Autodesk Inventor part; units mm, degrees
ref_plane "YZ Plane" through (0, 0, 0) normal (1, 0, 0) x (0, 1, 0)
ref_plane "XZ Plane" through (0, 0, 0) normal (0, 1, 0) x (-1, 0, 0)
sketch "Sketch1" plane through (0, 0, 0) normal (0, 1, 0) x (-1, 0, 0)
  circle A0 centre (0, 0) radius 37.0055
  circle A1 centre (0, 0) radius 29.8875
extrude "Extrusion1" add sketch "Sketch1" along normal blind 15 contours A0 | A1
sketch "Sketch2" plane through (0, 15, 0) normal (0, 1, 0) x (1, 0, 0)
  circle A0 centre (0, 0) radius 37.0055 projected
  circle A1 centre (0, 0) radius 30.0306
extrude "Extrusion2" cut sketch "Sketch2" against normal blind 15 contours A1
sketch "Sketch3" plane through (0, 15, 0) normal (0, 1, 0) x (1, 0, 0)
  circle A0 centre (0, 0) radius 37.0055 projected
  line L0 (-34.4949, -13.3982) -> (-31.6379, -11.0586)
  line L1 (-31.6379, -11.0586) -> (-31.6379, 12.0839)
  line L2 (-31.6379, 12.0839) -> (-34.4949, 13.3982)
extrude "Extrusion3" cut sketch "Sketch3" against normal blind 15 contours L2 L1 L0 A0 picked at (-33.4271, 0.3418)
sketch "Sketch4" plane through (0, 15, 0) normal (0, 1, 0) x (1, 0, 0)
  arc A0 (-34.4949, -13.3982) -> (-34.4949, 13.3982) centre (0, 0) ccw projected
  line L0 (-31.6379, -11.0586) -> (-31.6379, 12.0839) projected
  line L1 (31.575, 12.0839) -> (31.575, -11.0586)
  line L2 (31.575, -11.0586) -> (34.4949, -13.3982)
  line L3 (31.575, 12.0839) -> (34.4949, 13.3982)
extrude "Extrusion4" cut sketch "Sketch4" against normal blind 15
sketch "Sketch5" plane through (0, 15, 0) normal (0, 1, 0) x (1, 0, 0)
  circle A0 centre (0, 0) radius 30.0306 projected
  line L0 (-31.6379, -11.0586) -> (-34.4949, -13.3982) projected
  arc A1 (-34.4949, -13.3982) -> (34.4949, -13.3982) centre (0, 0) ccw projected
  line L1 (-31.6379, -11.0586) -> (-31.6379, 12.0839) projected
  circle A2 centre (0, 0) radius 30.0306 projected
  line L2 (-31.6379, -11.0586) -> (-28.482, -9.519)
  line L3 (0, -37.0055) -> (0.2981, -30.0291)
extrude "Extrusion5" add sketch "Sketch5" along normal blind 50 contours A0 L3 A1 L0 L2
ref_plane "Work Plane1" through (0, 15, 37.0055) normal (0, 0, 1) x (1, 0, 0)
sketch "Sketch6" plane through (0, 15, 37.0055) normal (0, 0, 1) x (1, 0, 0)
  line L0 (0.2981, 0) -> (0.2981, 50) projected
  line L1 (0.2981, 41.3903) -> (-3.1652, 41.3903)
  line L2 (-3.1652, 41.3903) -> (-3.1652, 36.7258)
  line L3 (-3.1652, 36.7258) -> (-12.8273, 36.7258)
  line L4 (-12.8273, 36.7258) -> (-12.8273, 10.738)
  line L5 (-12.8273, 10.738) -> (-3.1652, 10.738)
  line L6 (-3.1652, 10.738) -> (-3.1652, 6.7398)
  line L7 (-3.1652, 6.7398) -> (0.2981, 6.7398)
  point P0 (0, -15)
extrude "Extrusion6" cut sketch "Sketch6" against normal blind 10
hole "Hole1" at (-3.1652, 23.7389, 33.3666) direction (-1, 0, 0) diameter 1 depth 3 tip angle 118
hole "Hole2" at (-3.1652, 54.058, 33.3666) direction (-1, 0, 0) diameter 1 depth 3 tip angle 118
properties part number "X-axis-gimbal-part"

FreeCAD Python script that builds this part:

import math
import FreeCAD as App
import Part
import Sketcher

V = App.Vector
Q = App.Units.Quantity

doc = App.newDocument("Part")
body = doc.addObject("PartDesign::Body", "Body")

# Sketch on XZ plane
sketch1 = body.newObject("Sketcher::SketchObject", "Sketch")
sketch1.AttachmentSupport = (doc.getObject("XZ_Plane"), [""])
sketch1.MapMode = "FlatFace"
sketch1.addGeometry(Part.Circle(V(0, 0, 0), V(0, 0, 1), 37.0055), False)
sketch1.addConstraint([
    Sketcher.Constraint("Coincident", 0, 3, -1, 1),
    Sketcher.Constraint("Diameter", 0, Q("74.011 mm")),
])
pad1 = body.newObject("PartDesign::Pad", "Pad")
pad1.Profile = sketch1
pad1.Length = 15
pad1.Reversed = True

# Sketch on XZ plane
sketch2 = body.newObject("Sketcher::SketchObject", "Sketch001")
sketch2.AttachmentSupport = (doc.getObject("XZ_Plane"), [""])
sketch2.MapMode = "FlatFace"
sketch2.AttachmentOffset = App.Placement(V(0, 0, -15), App.Rotation())
sketch2.addGeometry(Part.Circle(V(0, 0, 0), V(0, 0, 1), 30.0306), False)
sketch2.addConstraint([
    Sketcher.Constraint("Coincident", 0, 3, -1, 1),
    Sketcher.Constraint("Diameter", 0, Q("60.0612 mm")),
])
pocket1 = body.newObject("PartDesign::Pocket", "Pocket")
pocket1.Profile = sketch2
pocket1.Length = 15
pocket1.Reversed = True

# Sketch on XZ plane
sketch3 = body.newObject("Sketcher::SketchObject", "Sketch002")
sketch3.AttachmentSupport = (doc.getObject("XZ_Plane"), [""])
sketch3.MapMode = "FlatFace"
sketch3.AttachmentOffset = App.Placement(V(0, 0, -15), App.Rotation())
sketch3.addGeometry([
    Part.LineSegment(V(-31.6379, -12.0839, 0), V(-34.4949, -13.3982, 0)),
    Part.ArcOfCircle(Part.Circle(V(0, 0, 0), V(0, 0, 1), 37.0055), math.radians(158.77328), math.radians(201.22672)),
    Part.LineSegment(V(-34.4949, 13.3982, 0), V(-31.6379, 11.0586, 0)),
    Part.LineSegment(V(-31.6379, 11.0586, 0), V(-31.6379, -12.0839, 0)),
], False)
sketch3.addConstraint([
    Sketcher.Constraint("Coincident", 0, 2, 1, 2),
    Sketcher.Constraint("Coincident", 1, 1, 2, 1),
    Sketcher.Constraint("Coincident", 2, 2, 3, 1),
    Sketcher.Constraint("Coincident", 3, 2, 0, 1),
    Sketcher.Constraint("Vertical", 3),
    Sketcher.Constraint("Coincident", 1, 3, -1, 1),
    Sketcher.Constraint("Vertical", 0, 2, 1, 1),
    Sketcher.Constraint("Radius", 1, Q("37.0055 mm")),
    Sketcher.Constraint("DistanceY", 3, 2, 3, 1, Q("23.1425 mm")),
    Sketcher.Constraint("DistanceX", 0, 2, -1, 1, Q("34.495 mm")),
    Sketcher.Constraint("DistanceX", 2, 2, -1, 1, Q("31.638 mm")),
    Sketcher.Constraint("DistanceY", 3, 2, -1, 1, Q("12.084 mm")),
])
pocket2 = body.newObject("PartDesign::Pocket", "Pocket001")
pocket2.Profile = sketch3
pocket2.Length = 15
pocket2.Reversed = True

# Sketch on XZ plane
sketch4 = body.newObject("Sketcher::SketchObject", "Sketch003")
sketch4.AttachmentSupport = (doc.getObject("XZ_Plane"), [""])
sketch4.MapMode = "FlatFace"
sketch4.AttachmentOffset = App.Placement(V(0, 0, -15), App.Rotation())
sketch4.addGeometry([
    Part.LineSegment(V(31.575, 11.0586, 0), V(34.4949, 13.3982, 0)),
    Part.ArcOfCircle(Part.Circle(V(0, 0, 0), V(0, 0, 1), 37.005539), math.radians(-21.22672), math.radians(21.22672)),
    Part.LineSegment(V(34.4949, -13.3982, 0), V(31.575, -12.0839, 0)),
    Part.LineSegment(V(31.575, -12.0839, 0), V(31.575, 11.0586, 0)),
], False)
sketch4.addConstraint([
    Sketcher.Constraint("Coincident", 0, 2, 1, 2),
    Sketcher.Constraint("Coincident", 1, 1, 2, 1),
    Sketcher.Constraint("Coincident", 2, 2, 3, 1),
    Sketcher.Constraint("Coincident", 3, 2, 0, 1),
    Sketcher.Constraint("Vertical", 3),
    Sketcher.Constraint("Coincident", 1, 3, -1, 1),
    Sketcher.Constraint("Vertical", 0, 2, 1, 1),
    Sketcher.Constraint("Radius", 1, Q("37.0055 mm")),
    Sketcher.Constraint("DistanceX", 2, 2, 1, 1, Q("2.92 mm")),
    Sketcher.Constraint("Distance", 2, Q("3.202 mm")),
    Sketcher.Constraint("DistanceY", 3, 1, 3, 2, Q("23.1425 mm")),
    Sketcher.Constraint("DistanceX", -1, 1, 0, 2, Q("34.495 mm")),
])
pocket3 = body.newObject("PartDesign::Pocket", "Pocket002")
pocket3.Profile = sketch4
pocket3.Length = 15
pocket3.Reversed = True

# Sketch on XZ plane
sketch5 = body.newObject("Sketcher::SketchObject", "Sketch004")
sketch5.AttachmentSupport = (doc.getObject("XZ_Plane"), [""])
sketch5.MapMode = "FlatFace"
sketch5.AttachmentOffset = App.Placement(V(0, 0, -15), App.Rotation())
sketch5.addGeometry([
    Part.ArcOfCircle(Part.Circle(V(0, 0, 0), V(0, 0, 1), 30.0306), math.radians(89.431241), math.radians(161.519801)),  # 0
    Part.LineSegment(V(-28.482, 9.519, 0), V(-31.6379, 11.0586, 0)),  # 1
    Part.LineSegment(V(-31.6379, 11.0586, 0), V(-34.4949, 13.3982, 0)),  # 2
    Part.ArcOfCircle(Part.Circle(V(0, 0, 0), V(0, 0, 1), 37.005539), math.radians(90), math.radians(158.77328)),  # 3
    Part.LineSegment(V(0, 37.0055, 0), V(0.2981, 30.0291, 0)),  # 4
], False)
sketch5.addConstraint([
    Sketcher.Constraint("Coincident", 0, 2, 1, 1),
    Sketcher.Constraint("Coincident", 1, 2, 2, 1),
    Sketcher.Constraint("Coincident", 2, 2, 3, 2),
    Sketcher.Constraint("Coincident", 3, 1, 4, 1),
    Sketcher.Constraint("Coincident", 4, 2, 0, 1),
    Sketcher.Constraint("Coincident", 0, 3, -1, 1),
    Sketcher.Constraint("Coincident", 3, 3, -1, 1),
    Sketcher.Constraint("PointOnObject", 3, 1, -2),
    Sketcher.Constraint("Radius", 0, Q("30.0306 mm")),
    Sketcher.Constraint("Radius", 3, Q("37.0055 mm")),
    Sketcher.Constraint("DistanceX", 0, 2, 4, 2, Q("28.78 mm")),
    Sketcher.Constraint("DistanceY", 0, 2, 4, 2, Q("20.51 mm")),
    Sketcher.Constraint("DistanceX", 1, 2, -1, 1, Q("31.638 mm")),
    Sketcher.Constraint("DistanceX", 2, 2, -1, 1, Q("34.495 mm")),
    Sketcher.Constraint("DistanceY", 1, 2, 3, 1, Q("25.947 mm")),
])
pad2 = body.newObject("PartDesign::Pad", "Pad001")
pad2.Profile = sketch5
pad2.Length = 50
pad2.Reversed = True

# Sketch on XY plane
sketch6 = body.newObject("Sketcher::SketchObject", "Sketch005")
sketch6.AttachmentSupport = (doc.getObject("XY_Plane"), [""])
sketch6.MapMode = "FlatFace"
sketch6.AttachmentOffset = App.Placement(V(0, 0, 37.0055), App.Rotation())
sketch6.addGeometry([
    Part.LineSegment(V(-3.1652, 21.7398, 0), V(0.2981, 21.7398, 0)),  # 0
    Part.LineSegment(V(0.2981, 21.7398, 0), V(0.2981, 56.3903, 0)),  # 1
    Part.LineSegment(V(0.2981, 56.3903, 0), V(-3.1652, 56.3903, 0)),  # 2
    Part.LineSegment(V(-3.1652, 56.3903, 0), V(-3.1652, 51.7258, 0)),  # 3
    Part.LineSegment(V(-3.1652, 51.7258, 0), V(-12.8273, 51.7258, 0)),  # 4
    Part.LineSegment(V(-12.8273, 51.7258, 0), V(-12.8273, 25.738, 0)),  # 5
    Part.LineSegment(V(-12.8273, 25.738, 0), V(-3.1652, 25.738, 0)),  # 6
    Part.LineSegment(V(-3.1652, 25.738, 0), V(-3.1652, 21.7398, 0)),  # 7
], False)
sketch6.addConstraint([
    Sketcher.Constraint("Coincident", 0, 2, 1, 1),
    Sketcher.Constraint("Coincident", 1, 2, 2, 1),
    Sketcher.Constraint("Coincident", 2, 2, 3, 1),
    Sketcher.Constraint("Coincident", 3, 2, 4, 1),
    Sketcher.Constraint("Coincident", 4, 2, 5, 1),
    Sketcher.Constraint("Coincident", 5, 2, 6, 1),
    Sketcher.Constraint("Coincident", 6, 2, 7, 1),
    Sketcher.Constraint("Coincident", 7, 2, 0, 1),
    Sketcher.Constraint("Horizontal", 0),
    Sketcher.Constraint("Vertical", 1),
    Sketcher.Constraint("Horizontal", 2),
    Sketcher.Constraint("Vertical", 3),
    Sketcher.Constraint("Horizontal", 4),
    Sketcher.Constraint("Vertical", 5),
    Sketcher.Constraint("Horizontal", 6),
    Sketcher.Constraint("Vertical", 7),
    Sketcher.Constraint("Vertical", 3, 2, 6, 2),
    Sketcher.Constraint("DistanceX", 4, 2, 4, 1, Q("9.662 mm")),
    Sketcher.Constraint("DistanceX", 0, 1, 0, 2, Q("3.4633 mm")),
    Sketcher.Constraint("DistanceY", 1, 1, 1, 2, Q("34.6505 mm")),
    Sketcher.Constraint("DistanceY", 3, 2, 3, 1, Q("4.6645 mm")),
    Sketcher.Constraint("DistanceY", 5, 2, 5, 1, Q("25.9878 mm")),
    Sketcher.Constraint("DistanceX", -1, 1, 0, 2, Q("0.298 mm")),
    Sketcher.Constraint("DistanceY", -1, 1, 5, 2, Q("25.738 mm")),
])
pocket4 = body.newObject("PartDesign::Pocket", "Pocket003")
pocket4.Profile = sketch6
pocket4.Length = 10

# Sketch on YZ plane
sketch7 = body.newObject("Sketcher::SketchObject", "Sketch006")
sketch7.AttachmentSupport = (doc.getObject("YZ_Plane"), [""])
sketch7.MapMode = "FlatFace"
sketch7.AttachmentOffset = App.Placement(V(0, 0, -3.1652), App.Rotation())
sketch7.addGeometry(Part.Circle(V(23.7389, 33.3666, 0), V(0, 0, 1), 0.5), False)
sketch7.addConstraint([
    Sketcher.Constraint("Diameter", 0, Q("1 mm")),
    Sketcher.Constraint("DistanceX", -1, 1, 0, 3, Q("23.739 mm")),
    Sketcher.Constraint("DistanceY", -1, 1, 0, 3, Q("33.3666 mm")),
])
doc.recompute()
hole = body.newObject("PartDesign::Hole", "Hole")
hole.Profile = sketch7
hole.ThreadType = "None"
hole.Diameter = 1
hole.DepthType = "Dimension"
hole.Depth = 3
hole.DrillPoint = "Angled"
hole.DrillPointAngle = 118

# Sketch on YZ plane
sketch8 = body.newObject("Sketcher::SketchObject", "Sketch007")
sketch8.AttachmentSupport = (doc.getObject("YZ_Plane"), [""])
sketch8.MapMode = "FlatFace"
sketch8.AttachmentOffset = App.Placement(V(0, 0, -3.1652), App.Rotation())
sketch8.addGeometry(Part.Circle(V(54.058, 33.3666, 0), V(0, 0, 1), 0.5), False)
sketch8.addConstraint([
    Sketcher.Constraint("Diameter", 0, Q("1 mm")),
    Sketcher.Constraint("DistanceX", -1, 1, 0, 3, Q("54.058 mm")),
    Sketcher.Constraint("DistanceY", -1, 1, 0, 3, Q("33.3666 mm")),
])
doc.recompute()
hole2 = body.newObject("PartDesign::Hole", "Hole001")
hole2.Profile = sketch8
hole2.ThreadType = "None"
hole2.Diameter = 1
hole2.DepthType = "Dimension"
hole2.Depth = 3
hole2.DrillPoint = "Angled"
hole2.DrillPointAngle = 118

doc.recompute()
